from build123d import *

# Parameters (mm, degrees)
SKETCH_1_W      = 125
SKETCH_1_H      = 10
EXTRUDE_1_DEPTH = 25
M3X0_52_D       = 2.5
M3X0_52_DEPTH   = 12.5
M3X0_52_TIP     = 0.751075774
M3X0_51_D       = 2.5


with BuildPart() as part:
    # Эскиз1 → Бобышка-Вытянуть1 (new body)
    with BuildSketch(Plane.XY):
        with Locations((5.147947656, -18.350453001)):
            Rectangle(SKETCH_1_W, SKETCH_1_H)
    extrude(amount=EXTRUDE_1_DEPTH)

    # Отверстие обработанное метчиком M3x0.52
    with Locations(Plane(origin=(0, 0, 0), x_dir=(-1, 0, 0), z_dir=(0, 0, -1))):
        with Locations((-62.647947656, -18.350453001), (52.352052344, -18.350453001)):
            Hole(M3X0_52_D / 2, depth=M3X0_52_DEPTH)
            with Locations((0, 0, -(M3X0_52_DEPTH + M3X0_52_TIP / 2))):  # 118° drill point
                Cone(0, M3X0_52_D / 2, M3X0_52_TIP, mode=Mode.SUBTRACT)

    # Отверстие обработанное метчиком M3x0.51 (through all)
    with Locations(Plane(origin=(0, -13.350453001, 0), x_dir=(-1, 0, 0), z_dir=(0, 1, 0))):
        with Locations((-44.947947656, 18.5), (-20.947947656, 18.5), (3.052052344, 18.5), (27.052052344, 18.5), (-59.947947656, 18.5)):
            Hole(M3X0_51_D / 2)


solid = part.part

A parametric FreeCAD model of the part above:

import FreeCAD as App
import Part
import Sketcher

V = App.Vector
Q = App.Units.Quantity


def add_polygon(sketch, points):
    """Adds a closed chain of lines whose ends are joined by coincident constraints."""
    first, n = sketch.GeometryCount, len(points)
    for a, b in zip(points, points[1:] + points[:1]):
        sketch.addGeometry(Part.LineSegment(App.Vector(*a, 0), App.Vector(*b, 0)), False)
    for i in range(n):
        sketch.addConstraint(Sketcher.Constraint("Coincident", first + i, 2, first + (i + 1) % n, 1))

doc = App.newDocument("Part")
params = doc.addObject("Spreadsheet::Sheet", "Params")
for row, (alias, value) in enumerate([
    ("sketch1_width", "125 mm"),
    ("sketch1_height", "10 mm"),
    ("pad1_length", "25 mm"),
    ("sketch2_diameter", "2.5 mm"),
    ("hole_diameter", "2.5 mm"),
    ("hole_depth", "12.5 mm"),
    ("sketch3_diameter", "2.5 mm"),
    ("hole2_diameter", "2.5 mm"),
], start=1):
    params.set(f"A{row}", alias)
    params.set(f"B{row}", "=" + value)
    params.setAlias(f"B{row}", alias)

body = doc.addObject("PartDesign::Body", "Body")

# Sketch on XY plane
sketch1 = doc.addObject("Sketcher::SketchObject", "Sketch")
body.addObject(sketch1)
sketch1.AttachmentSupport = (doc.XY_Plane, [""])
sketch1.MapMode = "FlatFace"
add_polygon(sketch1, [(-57, -13), (-57, -23), (68, -23), (68, -13)])  # lines 0-3
sketch1.addConstraint([
    Sketcher.Constraint("Vertical", 0),
    Sketcher.Constraint("Horizontal", 1),
    Sketcher.Constraint("Vertical", 2),
    Sketcher.Constraint("Horizontal", 3),
    Sketcher.Constraint("DistanceX", 1, 1, 1, 2, Q("125 mm")),
    Sketcher.Constraint("DistanceY", 0, 2, 0, 1, Q("10 mm")),
    Sketcher.Constraint("DistanceX", 0, 2, -1, 1, Q("57.352052 mm")),
    Sketcher.Constraint("DistanceY", 0, 2, -1, 1, Q("23.350453 mm")),
])
sketch1.setExpression("Constraints[8]", "Params.sketch1_width")
sketch1.setExpression("Constraints[9]", "Params.sketch1_height")
pad1 = doc.addObject("PartDesign::Pad", "Pad")
body.addObject(pad1)
pad1.Profile = sketch1
pad1.setExpression("Length", "Params.pad1_length")

# Sketch on XY plane
sketch2 = doc.addObject("Sketcher::SketchObject", "Sketch001")
body.addObject(sketch2)
sketch2.AttachmentSupport = (doc.XY_Plane, [""])
sketch2.MapMode = "FlatFace"
sketch2.addGeometry([
    Part.Circle(V(62.6, -18.4, 0), V(0, 0, 1), 1.2),
    Part.Circle(V(-52.4, -18.4, 0), V(0, 0, 1), 1.2),
], False)
sketch2.addConstraint([
    Sketcher.Constraint("Equal", 0, 1),
    Sketcher.Constraint("Horizontal", 0, 3, 1, 3),
    Sketcher.Constraint("Diameter", 0, Q("2.5 mm")),
    Sketcher.Constraint("DistanceX", 1, 3, 0, 3, Q("115 mm")),
    Sketcher.Constraint("DistanceX", -1, 1, 0, 3, Q("62.647948 mm")),
    Sketcher.Constraint("DistanceY", 0, 3, -1, 1, Q("18.350453 mm")),
])
sketch2.setExpression("Constraints[2]", "Params.sketch2_diameter")
doc.recompute()
hole = doc.addObject("PartDesign::Hole", "Hole")
body.addObject(hole)
hole.Profile = sketch2
hole.ThreadType = "None"
hole.setExpression("Diameter", "Params.hole_diameter")
hole.DepthType = "Dimension"
hole.setExpression("Depth", "Params.hole_depth")
hole.DrillPoint = "Angled"
hole.DrillPointAngle = 118
hole.Reversed = True

# Sketch on XZ plane
sketch3 = doc.addObject("Sketcher::SketchObject", "Sketch002")
body.addObject(sketch3)
sketch3.AttachmentSupport = (doc.XZ_Plane, [""])
sketch3.MapMode = "FlatFace"
sketch3.AttachmentOffset = App.Placement(V(0, 0, 13.350453), App.Rotation())
sketch3.addGeometry([
    Part.Circle(V(44.9, 18.5, 0), V(0, 0, 1), 1.2),  # 0
    Part.Circle(V(20.9, 18.5, 0), V(0, 0, 1), 1.2),  # 1
    Part.Circle(V(-3.1, 18.5, 0), V(0, 0, 1), 1.2),  # 2
    Part.Circle(V(-27.1, 18.5, 0), V(0, 0, 1), 1.2),  # 3
    Part.Circle(V(59.9, 18.5, 0), V(0, 0, 1), 1.2),  # 4
], False)
sketch3.addConstraint([
    Sketcher.Constraint("Equal", 0, 1),
    Sketcher.Constraint("Equal", 1, 2),
    Sketcher.Constraint("Equal", 2, 3),
    Sketcher.Constraint("Equal", 3, 4),
    Sketcher.Constraint("Horizontal", 0, 3, 1, 3),
    Sketcher.Constraint("Horizontal", 1, 3, 2, 3),
    Sketcher.Constraint("Horizontal", 2, 3, 3, 3),
    Sketcher.Constraint("Horizontal", 3, 3, 4, 3),
    Sketcher.Constraint("Diameter", 0, Q("2.5 mm")),
    Sketcher.Constraint("DistanceX", 1, 3, 0, 3, Q("24 mm")),
    Sketcher.Constraint("DistanceX", 2, 3, 1, 3, Q("24 mm")),
    Sketcher.Constraint("DistanceX", 3, 3, 2, 3, Q("24 mm")),
    Sketcher.Constraint("DistanceX", 0, 3, 4, 3, Q("15 mm")),
    Sketcher.Constraint("DistanceY", -1, 1, 0, 3, Q("18.5 mm")),
    Sketcher.Constraint("DistanceX", -1, 1, 0, 3, Q("44.947948 mm")),
])
sketch3.setExpression("Constraints[8]", "Params.sketch3_diameter")
doc.recompute()
hole2 = doc.addObject("PartDesign::Hole", "Hole001")
body.addObject(hole2)
hole2.Profile = sketch3
hole2.ThreadType = "None"
hole2.setExpression("Diameter", "Params.hole2_diameter")
hole2.DepthType = "ThroughAll"
hole2.Reversed = True

doc.recompute()
